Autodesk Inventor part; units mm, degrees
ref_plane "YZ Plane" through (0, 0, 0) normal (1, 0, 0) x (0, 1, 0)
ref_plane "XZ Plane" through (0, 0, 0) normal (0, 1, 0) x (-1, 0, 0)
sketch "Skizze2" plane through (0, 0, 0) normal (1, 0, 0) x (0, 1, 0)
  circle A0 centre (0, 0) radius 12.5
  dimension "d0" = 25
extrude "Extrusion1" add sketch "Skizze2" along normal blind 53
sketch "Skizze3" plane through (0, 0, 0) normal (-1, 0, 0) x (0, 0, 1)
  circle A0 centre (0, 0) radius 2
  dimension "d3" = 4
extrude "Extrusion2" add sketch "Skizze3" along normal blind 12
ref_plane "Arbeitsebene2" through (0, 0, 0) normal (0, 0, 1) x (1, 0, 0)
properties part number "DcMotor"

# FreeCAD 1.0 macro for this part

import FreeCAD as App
import Part
import Sketcher

doc = App.newDocument("Part")
params = doc.addObject("Spreadsheet::Sheet", "Params")
for row, (alias, value) in enumerate([
    ("sketch1_diameter", "25 mm"),
    ("pad1_length", "53 mm"),
    ("sketch2_diameter", "4 mm"),
    ("pad2_length", "12 mm"),
], start=1):
    params.set(f"A{row}", alias)
    params.set(f"B{row}", "=" + value)
    params.setAlias(f"B{row}", alias)

body = doc.addObject("PartDesign::Body", "Body")

sketch1 = body.newObject("Sketcher::SketchObject", "Sketch")
sketch1.AttachmentSupport = (doc.getObject("YZ_Plane"), [""])
sketch1.MapMode = "FlatFace"
sketch1.addGeometry(Part.Circle(App.Vector(0, 0, 0), App.Vector(0, 0, 1), 12), False)
sketch1.addConstraint([
    Sketcher.Constraint("Coincident", 0, 3, -1, 1),
    Sketcher.Constraint("Diameter", 0, 25.0),
])
sketch1.setExpression("Constraints[1]", "Params.sketch1_diameter")
pad1 = body.newObject("PartDesign::Pad", "Pad")
pad1.Profile = sketch1
pad1.setExpression("Length", "Params.pad1_length")

sketch2 = body.newObject("Sketcher::SketchObject", "Sketch001")
sketch2.AttachmentSupport = (doc.getObject("YZ_Plane"), [""])
sketch2.MapMode = "FlatFace"
sketch2.addGeometry(Part.Circle(App.Vector(0, 0, 0), App.Vector(0, 0, 1), 2), False)
sketch2.addConstraint([
    Sketcher.Constraint("Coincident", 0, 3, -1, 1),
    Sketcher.Constraint("Diameter", 0, 4.0),
])
sketch2.setExpression("Constraints[1]", "Params.sketch2_diameter")
pad2 = body.newObject("PartDesign::Pad", "Pad001")
pad2.Profile = sketch2
pad2.setExpression("Length", "Params.pad2_length")
pad2.Reversed = True

doc.recompute()
